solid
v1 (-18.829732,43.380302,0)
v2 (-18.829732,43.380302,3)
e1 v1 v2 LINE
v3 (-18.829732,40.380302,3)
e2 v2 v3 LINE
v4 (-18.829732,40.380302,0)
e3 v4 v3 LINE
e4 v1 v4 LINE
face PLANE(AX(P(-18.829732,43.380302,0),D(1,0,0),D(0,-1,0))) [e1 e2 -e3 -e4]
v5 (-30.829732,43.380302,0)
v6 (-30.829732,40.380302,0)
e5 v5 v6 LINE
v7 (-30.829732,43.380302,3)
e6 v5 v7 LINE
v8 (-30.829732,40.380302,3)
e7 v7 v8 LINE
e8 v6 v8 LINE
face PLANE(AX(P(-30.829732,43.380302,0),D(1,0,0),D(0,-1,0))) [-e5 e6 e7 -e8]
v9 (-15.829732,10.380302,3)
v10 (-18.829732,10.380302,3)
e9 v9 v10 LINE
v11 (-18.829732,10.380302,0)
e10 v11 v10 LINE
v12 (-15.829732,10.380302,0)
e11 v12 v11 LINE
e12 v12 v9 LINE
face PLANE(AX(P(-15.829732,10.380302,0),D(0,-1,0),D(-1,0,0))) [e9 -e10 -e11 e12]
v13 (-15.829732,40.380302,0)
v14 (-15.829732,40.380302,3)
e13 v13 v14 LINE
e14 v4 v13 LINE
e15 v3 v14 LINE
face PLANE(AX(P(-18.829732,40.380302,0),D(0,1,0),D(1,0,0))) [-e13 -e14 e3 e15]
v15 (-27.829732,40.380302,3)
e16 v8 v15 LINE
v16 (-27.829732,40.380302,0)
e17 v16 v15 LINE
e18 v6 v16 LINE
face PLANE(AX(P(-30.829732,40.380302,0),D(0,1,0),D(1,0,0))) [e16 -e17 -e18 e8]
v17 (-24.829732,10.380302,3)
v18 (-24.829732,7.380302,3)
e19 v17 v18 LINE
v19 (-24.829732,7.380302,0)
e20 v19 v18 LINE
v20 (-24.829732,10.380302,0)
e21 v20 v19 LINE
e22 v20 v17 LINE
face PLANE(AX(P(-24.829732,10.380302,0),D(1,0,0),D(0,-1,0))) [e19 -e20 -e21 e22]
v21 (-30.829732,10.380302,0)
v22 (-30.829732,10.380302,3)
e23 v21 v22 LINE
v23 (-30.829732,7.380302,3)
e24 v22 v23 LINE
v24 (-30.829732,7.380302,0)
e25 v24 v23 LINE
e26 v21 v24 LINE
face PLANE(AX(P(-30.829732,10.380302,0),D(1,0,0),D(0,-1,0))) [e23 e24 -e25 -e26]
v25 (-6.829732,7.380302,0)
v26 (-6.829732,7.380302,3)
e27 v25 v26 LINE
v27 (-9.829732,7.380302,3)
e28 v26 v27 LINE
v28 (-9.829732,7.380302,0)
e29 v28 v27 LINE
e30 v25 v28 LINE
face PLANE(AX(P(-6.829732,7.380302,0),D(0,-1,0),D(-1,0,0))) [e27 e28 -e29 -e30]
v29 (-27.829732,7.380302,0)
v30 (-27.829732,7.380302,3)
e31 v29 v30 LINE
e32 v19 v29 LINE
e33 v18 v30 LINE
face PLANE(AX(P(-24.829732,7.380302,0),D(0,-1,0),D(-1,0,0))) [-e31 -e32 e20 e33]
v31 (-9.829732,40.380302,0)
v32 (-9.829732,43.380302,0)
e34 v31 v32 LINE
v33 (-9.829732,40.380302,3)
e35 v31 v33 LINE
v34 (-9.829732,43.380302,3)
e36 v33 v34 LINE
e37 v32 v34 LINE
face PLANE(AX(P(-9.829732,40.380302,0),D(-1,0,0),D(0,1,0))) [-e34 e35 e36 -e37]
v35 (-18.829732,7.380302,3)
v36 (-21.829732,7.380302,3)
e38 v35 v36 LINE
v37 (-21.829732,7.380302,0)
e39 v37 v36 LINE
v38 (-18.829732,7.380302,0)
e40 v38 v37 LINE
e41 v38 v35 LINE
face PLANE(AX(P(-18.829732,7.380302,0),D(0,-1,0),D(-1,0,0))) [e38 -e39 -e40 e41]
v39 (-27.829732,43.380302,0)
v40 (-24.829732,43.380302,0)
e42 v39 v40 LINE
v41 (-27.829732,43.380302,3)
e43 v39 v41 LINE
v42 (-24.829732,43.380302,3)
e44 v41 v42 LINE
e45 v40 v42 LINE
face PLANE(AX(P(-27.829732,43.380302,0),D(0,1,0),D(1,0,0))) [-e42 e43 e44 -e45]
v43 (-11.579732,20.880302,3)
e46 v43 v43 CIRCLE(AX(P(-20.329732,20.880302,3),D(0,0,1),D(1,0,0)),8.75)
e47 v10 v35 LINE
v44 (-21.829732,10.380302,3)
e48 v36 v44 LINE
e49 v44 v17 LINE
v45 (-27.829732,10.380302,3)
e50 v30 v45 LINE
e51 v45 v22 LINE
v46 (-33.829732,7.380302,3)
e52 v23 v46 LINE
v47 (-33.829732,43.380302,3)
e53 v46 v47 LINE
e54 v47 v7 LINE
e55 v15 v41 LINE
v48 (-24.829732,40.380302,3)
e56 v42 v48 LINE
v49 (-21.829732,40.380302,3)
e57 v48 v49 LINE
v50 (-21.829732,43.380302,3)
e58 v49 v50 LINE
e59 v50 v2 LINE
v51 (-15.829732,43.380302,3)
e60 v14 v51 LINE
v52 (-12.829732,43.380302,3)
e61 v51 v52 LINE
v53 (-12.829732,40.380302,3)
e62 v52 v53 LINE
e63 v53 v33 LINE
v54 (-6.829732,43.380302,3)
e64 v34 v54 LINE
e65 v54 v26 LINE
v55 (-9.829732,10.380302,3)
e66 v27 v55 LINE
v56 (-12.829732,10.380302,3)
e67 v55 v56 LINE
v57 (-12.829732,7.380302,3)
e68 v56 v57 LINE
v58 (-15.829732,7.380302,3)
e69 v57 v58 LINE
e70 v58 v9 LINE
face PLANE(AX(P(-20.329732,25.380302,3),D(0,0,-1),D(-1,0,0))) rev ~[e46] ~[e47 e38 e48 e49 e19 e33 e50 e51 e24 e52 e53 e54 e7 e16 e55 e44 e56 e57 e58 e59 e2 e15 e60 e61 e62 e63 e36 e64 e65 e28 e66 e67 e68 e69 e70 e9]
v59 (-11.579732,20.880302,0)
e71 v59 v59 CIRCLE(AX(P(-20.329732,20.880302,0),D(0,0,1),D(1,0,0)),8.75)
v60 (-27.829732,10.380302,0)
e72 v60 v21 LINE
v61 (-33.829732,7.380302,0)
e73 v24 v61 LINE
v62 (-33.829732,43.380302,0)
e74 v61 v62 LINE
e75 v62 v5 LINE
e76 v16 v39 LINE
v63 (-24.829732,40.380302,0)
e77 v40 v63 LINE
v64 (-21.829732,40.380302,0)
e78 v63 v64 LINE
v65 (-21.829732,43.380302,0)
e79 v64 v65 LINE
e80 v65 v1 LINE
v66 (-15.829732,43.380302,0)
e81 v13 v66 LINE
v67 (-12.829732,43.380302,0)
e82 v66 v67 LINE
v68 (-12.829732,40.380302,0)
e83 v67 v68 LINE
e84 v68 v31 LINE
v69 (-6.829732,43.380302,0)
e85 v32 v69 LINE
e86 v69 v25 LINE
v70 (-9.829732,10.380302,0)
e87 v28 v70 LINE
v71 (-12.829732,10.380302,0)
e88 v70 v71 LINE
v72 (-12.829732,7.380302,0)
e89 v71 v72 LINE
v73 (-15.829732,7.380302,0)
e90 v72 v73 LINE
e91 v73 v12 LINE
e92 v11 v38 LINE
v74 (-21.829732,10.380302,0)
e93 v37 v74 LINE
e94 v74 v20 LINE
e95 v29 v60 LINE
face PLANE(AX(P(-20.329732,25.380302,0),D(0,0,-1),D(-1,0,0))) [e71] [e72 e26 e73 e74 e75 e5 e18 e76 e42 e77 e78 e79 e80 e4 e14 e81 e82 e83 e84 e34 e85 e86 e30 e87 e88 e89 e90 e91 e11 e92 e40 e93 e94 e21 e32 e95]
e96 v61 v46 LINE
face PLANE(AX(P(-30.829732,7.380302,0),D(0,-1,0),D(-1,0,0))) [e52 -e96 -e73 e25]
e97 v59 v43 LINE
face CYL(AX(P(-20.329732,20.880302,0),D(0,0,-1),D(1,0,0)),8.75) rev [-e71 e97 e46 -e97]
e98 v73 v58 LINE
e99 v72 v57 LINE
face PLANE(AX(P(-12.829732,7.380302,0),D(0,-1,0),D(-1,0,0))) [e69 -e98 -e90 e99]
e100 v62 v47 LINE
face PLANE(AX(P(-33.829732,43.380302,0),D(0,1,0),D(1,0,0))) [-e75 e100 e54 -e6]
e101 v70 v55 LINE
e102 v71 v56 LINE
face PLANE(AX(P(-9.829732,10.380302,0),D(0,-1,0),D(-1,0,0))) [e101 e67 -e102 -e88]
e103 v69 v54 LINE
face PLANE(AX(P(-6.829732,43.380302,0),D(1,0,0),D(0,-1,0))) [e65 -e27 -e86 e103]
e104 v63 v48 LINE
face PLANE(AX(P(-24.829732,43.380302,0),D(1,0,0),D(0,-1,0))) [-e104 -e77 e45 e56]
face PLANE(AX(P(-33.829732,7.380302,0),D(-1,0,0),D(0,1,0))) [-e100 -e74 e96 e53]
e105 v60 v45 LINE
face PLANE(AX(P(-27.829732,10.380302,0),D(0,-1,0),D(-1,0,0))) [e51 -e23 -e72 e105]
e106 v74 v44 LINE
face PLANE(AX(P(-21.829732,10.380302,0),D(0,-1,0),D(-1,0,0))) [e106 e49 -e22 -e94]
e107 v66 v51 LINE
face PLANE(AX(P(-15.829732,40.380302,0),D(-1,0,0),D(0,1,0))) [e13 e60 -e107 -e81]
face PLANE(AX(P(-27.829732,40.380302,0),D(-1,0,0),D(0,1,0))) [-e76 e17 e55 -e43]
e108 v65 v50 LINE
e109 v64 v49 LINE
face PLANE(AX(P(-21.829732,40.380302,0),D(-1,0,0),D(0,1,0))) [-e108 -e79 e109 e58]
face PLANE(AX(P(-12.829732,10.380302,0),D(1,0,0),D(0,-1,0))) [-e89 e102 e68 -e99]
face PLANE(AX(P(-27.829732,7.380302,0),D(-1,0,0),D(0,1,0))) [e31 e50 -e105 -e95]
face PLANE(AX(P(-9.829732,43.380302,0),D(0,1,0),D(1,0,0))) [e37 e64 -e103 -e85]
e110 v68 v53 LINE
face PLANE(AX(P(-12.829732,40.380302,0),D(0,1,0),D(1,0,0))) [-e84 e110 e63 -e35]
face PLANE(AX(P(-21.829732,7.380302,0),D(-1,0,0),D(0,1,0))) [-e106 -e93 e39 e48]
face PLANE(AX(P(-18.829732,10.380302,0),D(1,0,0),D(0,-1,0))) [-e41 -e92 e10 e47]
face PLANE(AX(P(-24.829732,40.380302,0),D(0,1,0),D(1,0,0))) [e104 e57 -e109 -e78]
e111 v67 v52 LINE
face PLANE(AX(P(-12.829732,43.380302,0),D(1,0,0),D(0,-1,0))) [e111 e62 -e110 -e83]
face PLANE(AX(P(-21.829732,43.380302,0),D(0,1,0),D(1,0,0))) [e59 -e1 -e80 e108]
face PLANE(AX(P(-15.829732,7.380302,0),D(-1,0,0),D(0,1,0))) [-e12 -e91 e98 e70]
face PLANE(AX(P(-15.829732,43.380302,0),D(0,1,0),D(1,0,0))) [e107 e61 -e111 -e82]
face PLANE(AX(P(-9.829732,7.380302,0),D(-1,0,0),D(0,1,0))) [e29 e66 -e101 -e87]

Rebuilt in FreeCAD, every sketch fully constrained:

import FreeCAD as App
import Part
import Sketcher

V = App.Vector

doc = App.newDocument("Part")
body = doc.addObject("PartDesign::Body", "Body")

sketch1 = body.newObject("Sketcher::SketchObject", "Sketch")
sketch1.AttachmentSupport = (doc.getObject("XY_Plane"), [""])
sketch1.MapMode = "FlatFace"
sketch1.addGeometry([
    Part.LineSegment(V(-30.8, 43.4, 0), V(-33.8, 43.4, 0)),
    Part.LineSegment(V(-33.8, 43.4, 0), V(-33.8, 7.4, 0)),
    Part.LineSegment(V(-33.8, 7.4, 0), V(-30.8, 7.4, 0)),
    Part.LineSegment(V(-30.8, 7.4, 0), V(-30.8, 10.4, 0)),
    Part.LineSegment(V(-30.8, 10.4, 0), V(-27.8, 10.4, 0)),
    Part.LineSegment(V(-27.8, 10.4, 0), V(-27.8, 7.4, 0)),
    Part.LineSegment(V(-27.8, 7.4, 0), V(-24.8, 7.4, 0)),
    Part.LineSegment(V(-24.8, 7.4, 0), V(-24.8, 10.4, 0)),
    Part.LineSegment(V(-24.8, 10.4, 0), V(-21.8, 10.4, 0)),
    Part.LineSegment(V(-21.8, 10.4, 0), V(-21.8, 7.4, 0)),
    Part.LineSegment(V(-21.8, 7.4, 0), V(-18.8, 7.4, 0)),
    Part.LineSegment(V(-18.8, 7.4, 0), V(-18.8, 10.4, 0)),
    Part.LineSegment(V(-18.8, 10.4, 0), V(-15.8, 10.4, 0)),
    Part.LineSegment(V(-15.8, 10.4, 0), V(-15.8, 7.4, 0)),
    Part.LineSegment(V(-15.8, 7.4, 0), V(-12.8, 7.4, 0)),
    Part.LineSegment(V(-12.8, 7.4, 0), V(-12.8, 10.4, 0)),
    Part.LineSegment(V(-12.8, 10.4, 0), V(-9.8, 10.4, 0)),
    Part.LineSegment(V(-9.8, 10.4, 0), V(-9.8, 7.4, 0)),
    Part.LineSegment(V(-9.8, 7.4, 0), V(-6.8, 7.4, 0)),
    Part.LineSegment(V(-6.8, 7.4, 0), V(-6.8, 43.4, 0)),
    Part.LineSegment(V(-6.8, 43.4, 0), V(-9.8, 43.4, 0)),
    Part.LineSegment(V(-9.8, 43.4, 0), V(-9.8, 40.4, 0)),
    Part.LineSegment(V(-9.8, 40.4, 0), V(-12.8, 40.4, 0)),
    Part.LineSegment(V(-12.8, 40.4, 0), V(-12.8, 43.4, 0)),
    Part.LineSegment(V(-12.8, 43.4, 0), V(-15.8, 43.4, 0)),
    Part.LineSegment(V(-15.8, 43.4, 0), V(-15.8, 40.4, 0)),
    Part.LineSegment(V(-15.8, 40.4, 0), V(-18.8, 40.4, 0)),
    Part.LineSegment(V(-18.8, 40.4, 0), V(-18.8, 43.4, 0)),
    Part.LineSegment(V(-18.8, 43.4, 0), V(-21.8, 43.4, 0)),
    Part.LineSegment(V(-21.8, 43.4, 0), V(-21.8, 40.4, 0)),
    Part.LineSegment(V(-21.8, 40.4, 0), V(-24.8, 40.4, 0)),
    Part.LineSegment(V(-24.8, 40.4, 0), V(-24.8, 43.4, 0)),
    Part.LineSegment(V(-24.8, 43.4, 0), V(-27.8, 43.4, 0)),
    Part.LineSegment(V(-27.8, 43.4, 0), V(-27.8, 40.4, 0)),
    Part.LineSegment(V(-27.8, 40.4, 0), V(-30.8, 40.4, 0)),
    Part.LineSegment(V(-30.8, 40.4, 0), V(-30.8, 43.4, 0)),
    Part.Circle(V(-20.3, 20.9, 0), V(0, 0, 1), 8.8),
], False)
sketch1.addConstraint([
    Sketcher.Constraint("Coincident", 0, 2, 1, 1),
    Sketcher.Constraint("Coincident", 1, 2, 2, 1),
    Sketcher.Constraint("Coincident", 2, 2, 3, 1),
    Sketcher.Constraint("Coincident", 3, 2, 4, 1),
    Sketcher.Constraint("Coincident", 4, 2, 5, 1),
    Sketcher.Constraint("Coincident", 5, 2, 6, 1),
    Sketcher.Constraint("Coincident", 6, 2, 7, 1),
    Sketcher.Constraint("Coincident", 7, 2, 8, 1),
    Sketcher.Constraint("Coincident", 8, 2, 9, 1),
    Sketcher.Constraint("Coincident", 9, 2, 10, 1),
    Sketcher.Constraint("Coincident", 10, 2, 11, 1),
    Sketcher.Constraint("Coincident", 11, 2, 12, 1),
    Sketcher.Constraint("Coincident", 12, 2, 13, 1),
    Sketcher.Constraint("Coincident", 13, 2, 14, 1),
    Sketcher.Constraint("Coincident", 14, 2, 15, 1),
    Sketcher.Constraint("Coincident", 15, 2, 16, 1),
    Sketcher.Constraint("Coincident", 16, 2, 17, 1),
    Sketcher.Constraint("Coincident", 17, 2, 18, 1),
    Sketcher.Constraint("Coincident", 18, 2, 19, 1),
    Sketcher.Constraint("Coincident", 19, 2, 20, 1),
    Sketcher.Constraint("Coincident", 20, 2, 21, 1),
    Sketcher.Constraint("Coincident", 21, 2, 22, 1),
    Sketcher.Constraint("Coincident", 22, 2, 23, 1),
    Sketcher.Constraint("Coincident", 23, 2, 24, 1),
    Sketcher.Constraint("Coincident", 24, 2, 25, 1),
    Sketcher.Constraint("Coincident", 25, 2, 26, 1),
    Sketcher.Constraint("Coincident", 26, 2, 27, 1),
    Sketcher.Constraint("Coincident", 27, 2, 28, 1),
    Sketcher.Constraint("Coincident", 28, 2, 29, 1),
    Sketcher.Constraint("Coincident", 29, 2, 30, 1),
    Sketcher.Constraint("Coincident", 30, 2, 31, 1),
    Sketcher.Constraint("Coincident", 31, 2, 32, 1),
    Sketcher.Constraint("Coincident", 32, 2, 33, 1),
    Sketcher.Constraint("Coincident", 33, 2, 34, 1),
    Sketcher.Constraint("Coincident", 34, 2, 35, 1),
    Sketcher.Constraint("Coincident", 35, 2, 0, 1),
    Sketcher.Constraint("Horizontal", 0),
    Sketcher.Constraint("Vertical", 1),
    Sketcher.Constraint("Horizontal", 2),
    Sketcher.Constraint("Vertical", 3),
    Sketcher.Constraint("Horizontal", 4),
    Sketcher.Constraint("Vertical", 5),
    Sketcher.Constraint("Horizontal", 6),
    Sketcher.Constraint("Vertical", 7),
    Sketcher.Constraint("Horizontal", 8),
    Sketcher.Constraint("Vertical", 9),
    Sketcher.Constraint("Horizontal", 10),
    Sketcher.Constraint("Vertical", 11),
    Sketcher.Constraint("Horizontal", 12),
    Sketcher.Constraint("Vertical", 13),
    Sketcher.Constraint("Horizontal", 14),
    Sketcher.Constraint("Vertical", 15),
    Sketcher.Constraint("Horizontal", 16),
    Sketcher.Constraint("Vertical", 17),
    Sketcher.Constraint("Horizontal", 18),
    Sketcher.Constraint("Vertical", 19),
    Sketcher.Constraint("Horizontal", 20),
    Sketcher.Constraint("Vertical", 21),
    Sketcher.Constraint("Horizontal", 22),
    Sketcher.Constraint("Vertical", 23),
    Sketcher.Constraint("Horizontal", 24),
    Sketcher.Constraint("Vertical", 25),
    Sketcher.Constraint("Horizontal", 26),
    Sketcher.Constraint("Vertical", 27),
    Sketcher.Constraint("Horizontal", 28),
    Sketcher.Constraint("Vertical", 29),
    Sketcher.Constraint("Horizontal", 30),
    Sketcher.Constraint("Vertical", 31),
    Sketcher.Constraint("Horizontal", 32),
    Sketcher.Constraint("Vertical", 33),
    Sketcher.Constraint("Horizontal", 34),
    Sketcher.Constraint("Vertical", 35),
    Sketcher.Constraint("Horizontal", 2, 2, 5, 2),
    Sketcher.Constraint("Horizontal", 4, 2, 7, 2),
    Sketcher.Constraint("Horizontal", 6, 2, 9, 2),
    Sketcher.Constraint("Horizontal", 8, 2, 11, 2),
    Sketcher.Constraint("Horizontal", 10, 2, 13, 2),
    Sketcher.Constraint("Horizontal", 12, 2, 15, 2),
    Sketcher.Constraint("Horizontal", 14, 2, 17, 2),
    Sketcher.Constraint("Horizontal", 0, 2, 19, 2),
    Sketcher.Constraint("Horizontal", 20, 2, 23, 2),
    Sketcher.Constraint("Horizontal", 22, 2, 25, 2),
    Sketcher.Constraint("Horizontal", 24, 2, 27, 2),
    Sketcher.Constraint("Horizontal", 26, 2, 29, 2),
    Sketcher.Constraint("Horizontal", 28, 2, 31, 2),
    Sketcher.Constraint("Horizontal", 30, 2, 33, 2),
    Sketcher.Constraint("Vertical", 17, 2, 20, 2),
    Sketcher.Constraint("Vertical", 15, 2, 22, 2),
    Sketcher.Constraint("Vertical", 13, 2, 24, 2),
    Sketcher.Constraint("Vertical", 11, 2, 26, 2),
    Sketcher.Constraint("Vertical", 9, 2, 28, 2),
    Sketcher.Constraint("Vertical", 7, 2, 30, 2),
    Sketcher.Constraint("Vertical", 5, 2, 32, 2),
    Sketcher.Constraint("Vertical", 3, 2, 34, 2),
    Sketcher.Constraint("Equal", 2, 4),
    Sketcher.Constraint("Equal", 4, 6),
    Sketcher.Constraint("Equal", 6, 8),
    Sketcher.Constraint("Equal", 8, 10),
    Sketcher.Constraint("Equal", 10, 12),
    Sketcher.Constraint("Equal", 12, 14),
    Sketcher.Constraint("Equal", 14, 16),
    Sketcher.Constraint("Equal", 16, 18),
    Sketcher.Constraint("Equal", 34, 3),
    Sketcher.Constraint("Equal", 17, 21),
    Sketcher.Constraint("Diameter", 36, 17.5),
    Sketcher.Constraint("DistanceX", 0, 2, 0, 1, 3.0),
    Sketcher.Constraint("DistanceY", 1, 2, 1, 1, 36.0),
    Sketcher.Constraint("DistanceX", 0, 2, 36, 3, 13.5),
    Sketcher.Constraint("DistanceY", 36, 3, 0, 2, 22.5),
    Sketcher.Constraint("DistanceX", 36, 3, -1, 1, 20.329732),
    Sketcher.Constraint("DistanceY", -1, 1, 36, 3, 20.880302),
])
pad1 = body.newObject("PartDesign::Pad", "Pad")
pad1.Profile = sketch1
pad1.Length = 3

doc.recompute()
